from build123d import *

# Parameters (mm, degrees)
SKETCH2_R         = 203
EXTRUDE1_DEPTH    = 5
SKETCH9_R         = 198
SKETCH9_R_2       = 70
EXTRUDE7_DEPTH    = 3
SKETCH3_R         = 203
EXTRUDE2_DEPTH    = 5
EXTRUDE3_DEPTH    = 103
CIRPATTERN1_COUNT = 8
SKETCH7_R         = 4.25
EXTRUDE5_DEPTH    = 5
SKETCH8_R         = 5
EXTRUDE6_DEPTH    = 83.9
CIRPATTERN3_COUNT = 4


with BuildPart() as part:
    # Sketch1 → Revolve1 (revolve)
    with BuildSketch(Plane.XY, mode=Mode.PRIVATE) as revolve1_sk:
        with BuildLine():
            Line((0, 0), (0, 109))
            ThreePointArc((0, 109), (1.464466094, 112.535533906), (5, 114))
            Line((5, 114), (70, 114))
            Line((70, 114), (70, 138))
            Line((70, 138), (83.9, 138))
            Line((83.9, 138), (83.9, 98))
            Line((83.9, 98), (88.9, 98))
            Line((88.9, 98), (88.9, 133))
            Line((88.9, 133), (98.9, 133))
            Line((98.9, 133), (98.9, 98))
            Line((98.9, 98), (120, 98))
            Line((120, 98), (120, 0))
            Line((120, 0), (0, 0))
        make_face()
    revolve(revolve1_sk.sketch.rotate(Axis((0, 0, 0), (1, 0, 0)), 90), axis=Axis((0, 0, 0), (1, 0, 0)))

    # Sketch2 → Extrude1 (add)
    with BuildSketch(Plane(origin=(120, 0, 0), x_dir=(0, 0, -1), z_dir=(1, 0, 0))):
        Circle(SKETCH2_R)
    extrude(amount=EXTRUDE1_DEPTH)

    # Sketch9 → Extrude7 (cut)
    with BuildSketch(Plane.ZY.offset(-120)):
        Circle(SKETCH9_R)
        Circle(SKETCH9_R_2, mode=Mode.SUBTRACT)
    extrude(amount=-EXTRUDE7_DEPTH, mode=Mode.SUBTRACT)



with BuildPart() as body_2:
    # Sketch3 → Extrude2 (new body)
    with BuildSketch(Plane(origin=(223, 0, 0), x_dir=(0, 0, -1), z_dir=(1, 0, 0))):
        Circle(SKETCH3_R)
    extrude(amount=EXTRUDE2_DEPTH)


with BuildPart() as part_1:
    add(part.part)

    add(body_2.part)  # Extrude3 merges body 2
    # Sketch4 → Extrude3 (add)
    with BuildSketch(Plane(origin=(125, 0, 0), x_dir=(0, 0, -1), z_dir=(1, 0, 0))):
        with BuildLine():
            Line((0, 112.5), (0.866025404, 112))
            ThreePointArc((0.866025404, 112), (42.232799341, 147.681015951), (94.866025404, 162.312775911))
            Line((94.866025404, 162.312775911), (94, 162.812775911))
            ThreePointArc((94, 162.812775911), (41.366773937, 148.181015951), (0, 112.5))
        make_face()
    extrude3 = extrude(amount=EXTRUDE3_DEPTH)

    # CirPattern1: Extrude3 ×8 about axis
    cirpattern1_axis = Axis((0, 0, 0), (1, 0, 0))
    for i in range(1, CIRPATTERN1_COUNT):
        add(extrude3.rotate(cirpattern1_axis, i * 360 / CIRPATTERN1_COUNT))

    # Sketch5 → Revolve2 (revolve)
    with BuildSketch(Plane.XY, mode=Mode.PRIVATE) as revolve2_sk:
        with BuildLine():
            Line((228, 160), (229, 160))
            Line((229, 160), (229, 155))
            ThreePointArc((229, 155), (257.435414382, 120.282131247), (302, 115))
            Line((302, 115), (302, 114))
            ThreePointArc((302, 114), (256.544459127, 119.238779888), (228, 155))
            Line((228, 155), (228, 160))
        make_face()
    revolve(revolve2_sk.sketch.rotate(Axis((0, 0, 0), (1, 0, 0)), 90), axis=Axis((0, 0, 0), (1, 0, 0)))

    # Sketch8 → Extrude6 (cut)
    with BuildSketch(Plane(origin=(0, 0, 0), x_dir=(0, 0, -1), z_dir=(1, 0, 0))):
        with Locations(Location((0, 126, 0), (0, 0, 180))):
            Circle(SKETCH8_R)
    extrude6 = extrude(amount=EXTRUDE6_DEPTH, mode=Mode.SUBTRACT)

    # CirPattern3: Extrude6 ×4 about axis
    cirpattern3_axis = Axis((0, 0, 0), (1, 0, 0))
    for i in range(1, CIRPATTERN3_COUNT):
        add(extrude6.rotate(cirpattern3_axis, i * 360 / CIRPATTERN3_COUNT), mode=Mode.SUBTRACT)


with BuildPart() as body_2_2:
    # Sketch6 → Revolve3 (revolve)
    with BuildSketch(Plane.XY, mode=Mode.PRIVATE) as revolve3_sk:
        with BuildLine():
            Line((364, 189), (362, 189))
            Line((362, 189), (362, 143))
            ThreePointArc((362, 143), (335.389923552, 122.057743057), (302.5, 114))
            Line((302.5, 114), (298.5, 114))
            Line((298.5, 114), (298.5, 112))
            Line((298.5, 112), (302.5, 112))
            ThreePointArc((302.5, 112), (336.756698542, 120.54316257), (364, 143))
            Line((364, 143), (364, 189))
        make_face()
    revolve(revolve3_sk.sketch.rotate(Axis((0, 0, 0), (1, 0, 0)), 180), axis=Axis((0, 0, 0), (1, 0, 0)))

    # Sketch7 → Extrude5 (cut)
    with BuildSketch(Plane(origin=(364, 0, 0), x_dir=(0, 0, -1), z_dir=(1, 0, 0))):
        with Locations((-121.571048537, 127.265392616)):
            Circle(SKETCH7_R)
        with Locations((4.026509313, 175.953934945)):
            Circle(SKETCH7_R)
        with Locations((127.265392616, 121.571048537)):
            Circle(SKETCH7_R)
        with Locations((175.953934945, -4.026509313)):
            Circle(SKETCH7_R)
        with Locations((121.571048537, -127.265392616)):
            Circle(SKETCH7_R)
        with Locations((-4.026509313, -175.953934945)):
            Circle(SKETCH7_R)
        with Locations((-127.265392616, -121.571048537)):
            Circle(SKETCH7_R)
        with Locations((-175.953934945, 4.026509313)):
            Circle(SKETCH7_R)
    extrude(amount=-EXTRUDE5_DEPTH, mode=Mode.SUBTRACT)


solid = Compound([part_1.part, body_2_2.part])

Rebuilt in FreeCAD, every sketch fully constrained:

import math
import FreeCAD as App
import Part
import Sketcher
from FreeCAD import Vector
Q = App.Units.Quantity

doc = App.newDocument("Part")
body = doc.addObject("PartDesign::Body", "Body")

sketch1 = body.newObject("Sketcher::SketchObject", "Sketch")
sketch1.AttachmentSupport = (doc.getObject("XY_Plane"), [""])
sketch1.MapMode = "FlatFace"
sketch1.addGeometry([
    Part.LineSegment(Vector(0, 109, 0), Vector(0, 0, 0)),
    Part.LineSegment(Vector(0, 0, 0), Vector(120, 0, 0)),
    Part.LineSegment(Vector(120, 0, 0), Vector(120, 98, 0)),
    Part.LineSegment(Vector(120, 98, 0), Vector(98.9, 98, 0)),
    Part.LineSegment(Vector(98.9, 98, 0), Vector(98.9, 133, 0)),
    Part.LineSegment(Vector(98.9, 133, 0), Vector(88.9, 133, 0)),
    Part.LineSegment(Vector(88.9, 133, 0), Vector(88.9, 98, 0)),
    Part.LineSegment(Vector(88.9, 98, 0), Vector(83.9, 98, 0)),
    Part.LineSegment(Vector(83.9, 98, 0), Vector(83.9, 138, 0)),
    Part.LineSegment(Vector(83.9, 138, 0), Vector(70, 138, 0)),
    Part.LineSegment(Vector(70, 138, 0), Vector(70, 114, 0)),
    Part.LineSegment(Vector(70, 114, 0), Vector(5, 114, 0)),
    Part.ArcOfCircle(Part.Circle(Vector(5, 109, 0), Vector(0, 0, 1), 5), math.radians(90), math.radians(180)),
], False)
sketch1.addConstraint([
    Sketcher.Constraint("Coincident", 0, 2, 1, 1),
    Sketcher.Constraint("Coincident", 1, 2, 2, 1),
    Sketcher.Constraint("Coincident", 2, 2, 3, 1),
    Sketcher.Constraint("Coincident", 3, 2, 4, 1),
    Sketcher.Constraint("Coincident", 4, 2, 5, 1),
    Sketcher.Constraint("Coincident", 5, 2, 6, 1),
    Sketcher.Constraint("Coincident", 6, 2, 7, 1),
    Sketcher.Constraint("Coincident", 7, 2, 8, 1),
    Sketcher.Constraint("Coincident", 8, 2, 9, 1),
    Sketcher.Constraint("Coincident", 9, 2, 10, 1),
    Sketcher.Constraint("Coincident", 10, 2, 11, 1),
    Sketcher.Constraint("Tangent", 11, 2, 12, 1),
    Sketcher.Constraint("Tangent", 12, 2, 0, 1),
    Sketcher.Constraint("Vertical", 0),
    Sketcher.Constraint("Horizontal", 1),
    Sketcher.Constraint("Vertical", 2),
    Sketcher.Constraint("Horizontal", 3),
    Sketcher.Constraint("Vertical", 4),
    Sketcher.Constraint("Horizontal", 5),
    Sketcher.Constraint("Vertical", 6),
    Sketcher.Constraint("Horizontal", 7),
    Sketcher.Constraint("Vertical", 8),
    Sketcher.Constraint("Horizontal", 9),
    Sketcher.Constraint("Vertical", 10),
    Sketcher.Constraint("Horizontal", 11),
    Sketcher.Constraint("Coincident", 0, 2, -1, 1),
    Sketcher.Constraint("Horizontal", 3, 2, 6, 2),
    Sketcher.Constraint("Radius", 12, 5.0),
    Sketcher.Constraint("DistanceX", 1, 1, 1, 2, 120.0),
    Sketcher.Constraint("DistanceX", 5, 2, 5, 1, 10.0),
    Sketcher.Constraint("DistanceX", 7, 2, 7, 1, 5.0),
    Sketcher.Constraint("DistanceX", 11, 2, 11, 1, 65.0),
    Sketcher.Constraint("DistanceY", 0, 2, 0, 1, 109.0),
    Sketcher.Constraint("DistanceY", 2, 1, 2, 2, 98.0),
    Sketcher.Constraint("DistanceY", 4, 1, 4, 2, 35.0),
    Sketcher.Constraint("DistanceY", 8, 1, 8, 2, 40.0),
    Sketcher.Constraint("DistanceX", 3, 2, 3, 1, 21.1),
])
revolution = body.newObject("PartDesign::Revolution", "Revolution")
revolution.Profile = sketch1
revolution.ReferenceAxis = (sketch1, ["H_Axis"])
revolution.Angle = 360

sketch2 = body.newObject("Sketcher::SketchObject", "Sketch001")
sketch2.AttachmentSupport = (doc.getObject("YZ_Plane"), [""])
sketch2.MapMode = "FlatFace"
sketch2.AttachmentOffset = App.Placement(Vector(0, 0, 120), App.Rotation())
sketch2.addGeometry(Part.Circle(Vector(0, 0, 0), Vector(0, 0, 1), 203), False)
sketch2.addConstraint([
    Sketcher.Constraint("Coincident", 0, 3, -1, 1),
    Sketcher.Constraint("Diameter", 0, 406.0),
])
pad1 = body.newObject("PartDesign::Pad", "Pad")
pad1.Profile = sketch2
pad1.Length = 5

sketch3 = body.newObject("Sketcher::SketchObject", "Sketch002")
sketch3.AttachmentSupport = (doc.getObject("YZ_Plane"), [""])
sketch3.MapMode = "FlatFace"
sketch3.AttachmentOffset = App.Placement(Vector(0, 0, 120), App.Rotation())
sketch3.addGeometry([
    Part.Circle(Vector(0, 0, 0), Vector(0, 0, 1), 198),
    Part.Circle(Vector(0, 0, 0), Vector(0, 0, 1), 70),
], False)
sketch3.addConstraint([
    Sketcher.Constraint("Coincident", 0, 3, -1, 1),
    Sketcher.Constraint("Coincident", 1, 3, -1, 1),
    Sketcher.Constraint("Diameter", 0, 396.0),
    Sketcher.Constraint("Diameter", 1, 140.0),
])
pocket1 = body.newObject("PartDesign::Pocket", "Pocket")
pocket1.Profile = sketch3
pocket1.Length = 3
pocket1.Reversed = True
body2 = doc.addObject("PartDesign::Body", "Body001")

sketch4 = body2.newObject("Sketcher::SketchObject", "Sketch003")
sketch4.AttachmentSupport = (doc.getObject("YZ_Plane001"), [""])
sketch4.MapMode = "FlatFace"
sketch4.AttachmentOffset = App.Placement(Vector(0, 0, 223), App.Rotation())
sketch4.addGeometry(Part.Circle(Vector(0, 0, 0), Vector(0, 0, 1), 203), False)
sketch4.addConstraint([
    Sketcher.Constraint("Coincident", 0, 3, -1, 1),
    Sketcher.Constraint("Diameter", 0, 406.0),
])
pad2 = body2.newObject("PartDesign::Pad", "Pad001")
pad2.Profile = sketch4
pad2.Length = 5
body.AllowCompound = True
doc.recompute()

boolean = body.newObject("PartDesign::Boolean", "Boolean")
boolean.Type = "Fuse"
boolean.addObjects([body2])

sketch5 = body.newObject("Sketcher::SketchObject", "Sketch004")
sketch5.AttachmentSupport = (doc.getObject("YZ_Plane"), [""])
sketch5.MapMode = "FlatFace"
sketch5.AttachmentOffset = App.Placement(Vector(0, 0, 125), App.Rotation())
sketch5.addGeometry([
    Part.LineSegment(Vector(112.5, 0, 0), Vector(112, -0.866025, 0)),
    Part.ArcOfCircle(Part.Circle(Vector(37.474375, -101.220055, 0), Vector(0, 0, 1), 125), math.radians(2.913728), math.radians(53.401419)),
    Part.LineSegment(Vector(162.312776, -94.866025, 0), Vector(162.812776, -94, 0)),
    Part.ArcOfCircle(Part.Circle(Vector(37.974375, -100.35403, 0), Vector(0, 0, 1), 125), math.radians(2.913728), math.radians(53.401419)),
], False)
sketch5.addConstraint([
    Sketcher.Constraint("Coincident", 0, 2, 1, 2),
    Sketcher.Constraint("Coincident", 1, 1, 2, 1),
    Sketcher.Constraint("Coincident", 2, 2, 3, 1),
    Sketcher.Constraint("Coincident", 3, 2, 0, 1),
    Sketcher.Constraint("Equal", 1, 3),
    Sketcher.Constraint("PointOnObject", 3, 2, -1),
    Sketcher.Constraint("Parallel", 0, 2),
    Sketcher.Constraint("Equal", 0, 2),
    Sketcher.Constraint("Radius", 1, 125.0),
    Sketcher.Constraint("Angle", 0, Q("-120 deg")),
    Sketcher.Constraint("Distance", 0, 1.0),
    Sketcher.Constraint("DistanceX", -1, 1, 0, 2, 112.0),
    Sketcher.Constraint("DistanceY", 2, 2, -1, 1, 94.0),
    Sketcher.Constraint("DistanceX", 3, 3, 1, 1, 124.338401),
])
pad3 = body.newObject("PartDesign::Pad", "Pad002")
pad3.Profile = sketch5
pad3.Length = 103
doc.recompute()

polarpattern = body.newObject("PartDesign::PolarPattern", "PolarPattern")
polarpattern.Originals = [pad3]
polarpattern.Axis = (doc.getObject("X_Axis"), [""])
polarpattern.Angle = 360
polarpattern.Occurrences = 8
body.Tip = polarpattern

sketch6 = body.newObject("Sketcher::SketchObject", "Sketch005")
sketch6.AttachmentSupport = (doc.getObject("XY_Plane"), [""])
sketch6.MapMode = "FlatFace"
sketch6.addGeometry([
    Part.LineSegment(Vector(229, 160, 0), Vector(228, 160, 0)),
    Part.LineSegment(Vector(228, 160, 0), Vector(228, 155, 0)),
    Part.ArcOfCircle(Part.Circle(Vector(285.622798, 171.721636, 0), Vector(0, 0, 1), 60), math.radians(-163.81773), math.radians(-74.159915)),
    Part.LineSegment(Vector(302, 114, 0), Vector(302, 115, 0)),
    Part.ArcOfCircle(Part.Circle(Vector(286.267494, 172.900676, 0), Vector(0, 0, 1), 60), math.radians(-162.641797), math.radians(-74.798856)),
    Part.LineSegment(Vector(229, 155, 0), Vector(229, 160, 0)),
], False)
sketch6.addConstraint([
    Sketcher.Constraint("Coincident", 0, 2, 1, 1),
    Sketcher.Constraint("Coincident", 1, 2, 2, 1),
    Sketcher.Constraint("Coincident", 2, 2, 3, 1),
    Sketcher.Constraint("Coincident", 3, 2, 4, 2),
    Sketcher.Constraint("Coincident", 4, 1, 5, 1),
    Sketcher.Constraint("Coincident", 5, 2, 0, 1),
    Sketcher.Constraint("Horizontal", 0),
    Sketcher.Constraint("Vertical", 1),
    Sketcher.Constraint("Vertical", 3),
    Sketcher.Constraint("Vertical", 5),
    Sketcher.Constraint("Equal", 2, 4),
    Sketcher.Constraint("Horizontal", 1, 2, 4, 1),
    Sketcher.Constraint("Equal", 0, 3),
    Sketcher.Constraint("Radius", 2, 60.0),
    Sketcher.Constraint("DistanceX", 0, 2, 0, 1, 1.0),
    Sketcher.Constraint("DistanceY", 1, 2, 1, 1, 5.0),
    Sketcher.Constraint("DistanceX", -1, 1, 0, 2, 228.0),
    Sketcher.Constraint("DistanceY", -1, 1, 0, 2, 160.0),
    Sketcher.Constraint("DistanceX", -1, 1, 2, 2, 302.0),
    Sketcher.Constraint("DistanceY", -1, 1, 2, 2, 114.0),
])
revolution2 = body.newObject("PartDesign::Revolution", "Revolution001")
revolution2.Profile = sketch6
revolution2.ReferenceAxis = (sketch6, ["H_Axis"])
revolution2.Angle = 360

sketch7 = body.newObject("Sketcher::SketchObject", "Sketch006")
sketch7.AttachmentSupport = (doc.getObject("YZ_Plane"), [""])
sketch7.MapMode = "FlatFace"
sketch7.addGeometry(Part.Circle(Vector(126, 0, 0), Vector(0, 0, 1), 5), False)
sketch7.addConstraint([
    Sketcher.Constraint("PointOnObject", 0, 3, -1),
    Sketcher.Constraint("Diameter", 0, 10.0),
    Sketcher.Constraint("DistanceX", -1, 1, 0, 3, 126.0),
])
pocket2 = body.newObject("PartDesign::Pocket", "Pocket001")
pocket2.Profile = sketch7
pocket2.Length = 83.9
pocket2.Reversed = True
doc.recompute()

polarpattern2 = body.newObject("PartDesign::PolarPattern", "PolarPattern001")
polarpattern2.Originals = [pocket2]
polarpattern2.Axis = (doc.getObject("X_Axis"), [""])
polarpattern2.Angle = 360
polarpattern2.Occurrences = 4
body.Tip = polarpattern2
body3 = doc.addObject("PartDesign::Body", "Body002")

sketch8 = body3.newObject("Sketcher::SketchObject", "Sketch007")
sketch8.AttachmentSupport = (doc.getObject("XY_Plane002"), [""])
sketch8.MapMode = "FlatFace"
sketch8.addGeometry([
    Part.LineSegment(Vector(364, 189, 0), Vector(362, 189, 0)),
    Part.LineSegment(Vector(362, 189, 0), Vector(362, 143, 0)),
    Part.ArcOfCircle(Part.Circle(Vector(300.339847, 193.970831, 0), Vector(0, 0, 1), 80), math.radians(-88.452717), math.radians(-39.578542)),
    Part.LineSegment(Vector(302.5, 114, 0), Vector(298.5, 114, 0)),
    Part.LineSegment(Vector(298.5, 114, 0), Vector(298.5, 112, 0)),
    Part.LineSegment(Vector(298.5, 112, 0), Vector(302.5, 112, 0)),
    Part.ArcOfCircle(Part.Circle(Vector(300.747482, 191.980802, 0), Vector(0, 0, 1), 80), math.radians(-88.744751), math.radians(-37.753097)),
    Part.LineSegment(Vector(364, 143, 0), Vector(364, 189, 0)),
], False)
sketch8.addConstraint([
    Sketcher.Constraint("Coincident", 0, 2, 1, 1),
    Sketcher.Constraint("Coincident", 1, 2, 2, 2),
    Sketcher.Constraint("Coincident", 2, 1, 3, 1),
    Sketcher.Constraint("Coincident", 3, 2, 4, 1),
    Sketcher.Constraint("Coincident", 4, 2, 5, 1),
    Sketcher.Constraint("Coincident", 5, 2, 6, 1),
    Sketcher.Constraint("Coincident", 6, 2, 7, 1),
    Sketcher.Constraint("Coincident", 7, 2, 0, 1),
    Sketcher.Constraint("Horizontal", 0),
    Sketcher.Constraint("Vertical", 1),
    Sketcher.Constraint("Horizontal", 3),
    Sketcher.Constraint("Vertical", 4),
    Sketcher.Constraint("Horizontal", 5),
    Sketcher.Constraint("Vertical", 7),
    Sketcher.Constraint("Equal", 2, 6),
    Sketcher.Constraint("Horizontal", 1, 2, 6, 2),
    Sketcher.Constraint("Vertical", 2, 1, 5, 2),
    Sketcher.Constraint("Equal", 0, 4),
    Sketcher.Constraint("Radius", 2, 80.0),
    Sketcher.Constraint("DistanceX", 0, 2, 0, 1, 2.0),
    Sketcher.Constraint("DistanceX", 3, 2, 3, 1, 4.0),
    Sketcher.Constraint("DistanceY", 1, 2, 1, 1, 46.0),
    Sketcher.Constraint("DistanceX", -1, 1, 0, 2, 362.0),
    Sketcher.Constraint("DistanceY", -1, 1, 0, 2, 189.0),
    Sketcher.Constraint("DistanceY", -1, 1, 2, 1, 114.0),
    Sketcher.Constraint("DistanceX", -1, 1, 2, 1, 302.5),
])
revolution3 = body3.newObject("PartDesign::Revolution", "Revolution002")
revolution3.Profile = sketch8
revolution3.ReferenceAxis = (sketch8, ["H_Axis"])
revolution3.Angle = 360

sketch9 = body3.newObject("Sketcher::SketchObject", "Sketch008")
sketch9.AttachmentSupport = (doc.getObject("YZ_Plane002"), [""])
sketch9.MapMode = "FlatFace"
sketch9.AttachmentOffset = App.Placement(Vector(0, 0, 364), App.Rotation())
sketch9.addGeometry([
    Part.Circle(Vector(127.265393, 121.571049, 0), Vector(0, 0, 1), 4.25),
    Part.Circle(Vector(175.953935, -4.026509, 0), Vector(0, 0, 1), 4.25),
    Part.Circle(Vector(121.571049, -127.265393, 0), Vector(0, 0, 1), 4.25),
    Part.Circle(Vector(-4.026509, -175.953935, 0), Vector(0, 0, 1), 4.25),
    Part.Circle(Vector(-127.265393, -121.571049, 0), Vector(0, 0, 1), 4.25),
    Part.Circle(Vector(-175.953935, 4.026509, 0), Vector(0, 0, 1), 4.25),
    Part.Circle(Vector(-121.571049, 127.265393, 0), Vector(0, 0, 1), 4.25),
    Part.Circle(Vector(4.026509, 175.953935, 0), Vector(0, 0, 1), 4.25),
], False)
sketch9.addConstraint([
    Sketcher.Constraint("Equal", 0, 1),
    Sketcher.Constraint("Equal", 1, 2),
    Sketcher.Constraint("Equal", 2, 3),
    Sketcher.Constraint("Equal", 3, 4),
    Sketcher.Constraint("Equal", 4, 5),
    Sketcher.Constraint("Equal", 5, 6),
    Sketcher.Constraint("Equal", 6, 7),
    Sketcher.Constraint("Symmetric", 0, 3, 4, 3, -1, 1),
    Sketcher.Constraint("Symmetric", 1, 3, 5, 3, -1, 1),
    Sketcher.Constraint("Symmetric", 2, 3, 6, 3, -1, 1),
    Sketcher.Constraint("Symmetric", 3, 3, 7, 3, -1, 1),
    Sketcher.Constraint("Diameter", 0, 8.5),
    Sketcher.Constraint("DistanceX", 3, 3, 0, 3, 131.291902),
    Sketcher.Constraint("DistanceY", 2, 3, 5, 3, 131.291902),
    Sketcher.Constraint("DistanceY", -1, 1, 0, 3, 121.571049),
    Sketcher.Constraint("DistanceY", 1, 3, -1, 1, 4.026509),
    Sketcher.Constraint("DistanceX", -1, 1, 2, 3, 121.571049),
    Sketcher.Constraint("DistanceX", 3, 3, -1, 1, 4.026509),
    Sketcher.Constraint("DistanceX", 5, 3, 1, 3, 351.90787),
    Sketcher.Constraint("DistanceY", 3, 3, -1, 1, 175.953935),
])
pocket3 = body3.newObject("PartDesign::Pocket", "Pocket002")
pocket3.Profile = sketch9
pocket3.Length = 5

doc.recompute()
